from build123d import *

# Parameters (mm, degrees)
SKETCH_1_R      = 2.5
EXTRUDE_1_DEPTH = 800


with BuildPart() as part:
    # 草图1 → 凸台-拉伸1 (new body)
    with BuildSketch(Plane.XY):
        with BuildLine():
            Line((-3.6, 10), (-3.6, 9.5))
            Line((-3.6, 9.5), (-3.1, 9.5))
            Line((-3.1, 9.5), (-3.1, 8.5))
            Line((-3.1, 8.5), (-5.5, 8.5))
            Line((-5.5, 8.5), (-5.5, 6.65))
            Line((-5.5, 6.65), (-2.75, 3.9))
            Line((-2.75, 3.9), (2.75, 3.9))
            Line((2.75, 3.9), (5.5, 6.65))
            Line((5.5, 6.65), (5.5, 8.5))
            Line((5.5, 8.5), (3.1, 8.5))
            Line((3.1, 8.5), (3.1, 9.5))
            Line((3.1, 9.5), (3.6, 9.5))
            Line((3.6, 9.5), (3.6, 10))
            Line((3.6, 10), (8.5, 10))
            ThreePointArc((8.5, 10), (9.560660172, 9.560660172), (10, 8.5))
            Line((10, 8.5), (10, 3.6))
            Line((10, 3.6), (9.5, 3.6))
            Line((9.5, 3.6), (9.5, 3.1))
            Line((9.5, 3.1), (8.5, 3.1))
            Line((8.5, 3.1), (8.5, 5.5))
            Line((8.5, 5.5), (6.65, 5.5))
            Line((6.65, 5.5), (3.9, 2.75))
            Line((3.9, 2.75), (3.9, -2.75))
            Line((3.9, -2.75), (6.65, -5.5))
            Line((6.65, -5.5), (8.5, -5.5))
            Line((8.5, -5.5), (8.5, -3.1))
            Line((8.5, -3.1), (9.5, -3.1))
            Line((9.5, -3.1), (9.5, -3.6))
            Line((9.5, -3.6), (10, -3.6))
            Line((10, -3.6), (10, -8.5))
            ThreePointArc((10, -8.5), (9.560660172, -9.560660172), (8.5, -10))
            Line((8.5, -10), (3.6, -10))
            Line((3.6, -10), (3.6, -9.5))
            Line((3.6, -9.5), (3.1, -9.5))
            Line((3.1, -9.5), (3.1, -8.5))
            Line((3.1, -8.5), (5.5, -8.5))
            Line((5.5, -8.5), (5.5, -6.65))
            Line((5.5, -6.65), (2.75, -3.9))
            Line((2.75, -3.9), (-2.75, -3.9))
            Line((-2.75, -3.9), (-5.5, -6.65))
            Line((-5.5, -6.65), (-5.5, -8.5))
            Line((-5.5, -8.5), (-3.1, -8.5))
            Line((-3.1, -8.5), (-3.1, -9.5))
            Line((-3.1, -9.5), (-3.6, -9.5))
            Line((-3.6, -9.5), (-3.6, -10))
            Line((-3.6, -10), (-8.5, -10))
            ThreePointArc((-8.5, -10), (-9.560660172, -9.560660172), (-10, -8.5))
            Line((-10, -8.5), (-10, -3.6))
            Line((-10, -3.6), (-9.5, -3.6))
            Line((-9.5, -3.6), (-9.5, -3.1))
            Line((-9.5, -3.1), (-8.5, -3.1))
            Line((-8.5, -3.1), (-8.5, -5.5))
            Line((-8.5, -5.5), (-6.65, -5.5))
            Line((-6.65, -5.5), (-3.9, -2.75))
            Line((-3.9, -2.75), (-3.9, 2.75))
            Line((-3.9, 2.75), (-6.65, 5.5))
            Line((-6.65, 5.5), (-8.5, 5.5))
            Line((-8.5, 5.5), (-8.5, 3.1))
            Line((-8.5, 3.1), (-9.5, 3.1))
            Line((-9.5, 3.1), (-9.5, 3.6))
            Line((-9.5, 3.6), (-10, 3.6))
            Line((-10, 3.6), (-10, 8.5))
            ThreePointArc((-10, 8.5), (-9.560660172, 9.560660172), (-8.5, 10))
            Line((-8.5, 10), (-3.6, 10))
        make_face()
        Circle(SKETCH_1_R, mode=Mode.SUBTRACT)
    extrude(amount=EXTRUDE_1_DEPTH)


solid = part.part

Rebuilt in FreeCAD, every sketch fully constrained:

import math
import FreeCAD as App
import Part
import Sketcher
from FreeCAD import Vector

doc = App.newDocument("Part")
params = doc.addObject("Spreadsheet::Sheet", "Params")
for row, (alias, value) in enumerate([
    ("sketch1_diameter", "5 mm"),
    ("sketch1_radius", "1.5 mm"),
    ("sketch1_width", "1 mm"),
    ("sketch1_width2", "4.9 mm"),
    ("sketch1_width3", "2.4 mm"),
    ("pad1_length", "800 mm"),
], start=1):
    params.set(f"A{row}", alias)
    params.set(f"B{row}", "=" + value)
    params.setAlias(f"B{row}", alias)

body = doc.addObject("PartDesign::Body", "Body")

# Sketch on XY plane
sketch1 = body.newObject("Sketcher::SketchObject", "Sketch")
sketch1.AttachmentSupport = (doc.getObject("XY_Plane"), [""])
sketch1.MapMode = "FlatFace"
sketch1.addGeometry([
    Part.LineSegment(Vector(-3.6, 9.5, 0), Vector(-3.6, 10, 0)),  # 0
    Part.LineSegment(Vector(-3.6, 10, 0), Vector(-8.5, 10, 0)),  # 1
    Part.ArcOfCircle(Part.Circle(Vector(-8.5, 8.5, 0), Vector(0, 0, 1), 1.5), math.radians(90), math.radians(180)),  # 2
    Part.LineSegment(Vector(-10, 8.5, 0), Vector(-10, 3.6, 0)),  # 3
    Part.LineSegment(Vector(-10, 3.6, 0), Vector(-9.5, 3.6, 0)),  # 4
    Part.LineSegment(Vector(-9.5, 3.6, 0), Vector(-9.5, 3.1, 0)),  # 5
    Part.LineSegment(Vector(-9.5, 3.1, 0), Vector(-8.5, 3.1, 0)),  # 6
    Part.LineSegment(Vector(-8.5, 3.1, 0), Vector(-8.5, 5.5, 0)),  # 7
    Part.LineSegment(Vector(-8.5, 5.5, 0), Vector(-6.7, 5.5, 0)),  # 8
    Part.LineSegment(Vector(-6.7, 5.5, 0), Vector(-3.9, 2.8, 0)),  # 9
    Part.LineSegment(Vector(-3.9, 2.8, 0), Vector(-3.9, -2.8, 0)),  # 10
    Part.LineSegment(Vector(-3.9, -2.8, 0), Vector(-6.7, -5.5, 0)),  # 11
    Part.LineSegment(Vector(-6.7, -5.5, 0), Vector(-8.5, -5.5, 0)),  # 12
    Part.LineSegment(Vector(-8.5, -5.5, 0), Vector(-8.5, -3.1, 0)),  # 13
    Part.LineSegment(Vector(-8.5, -3.1, 0), Vector(-9.5, -3.1, 0)),  # 14
    Part.LineSegment(Vector(-9.5, -3.1, 0), Vector(-9.5, -3.6, 0)),  # 15
    Part.LineSegment(Vector(-9.5, -3.6, 0), Vector(-10, -3.6, 0)),  # 16
    Part.LineSegment(Vector(-10, -3.6, 0), Vector(-10, -8.5, 0)),  # 17
    Part.ArcOfCircle(Part.Circle(Vector(-8.5, -8.5, 0), Vector(0, 0, 1), 1.5), math.radians(180), math.radians(270)),  # 18
    Part.LineSegment(Vector(-8.5, -10, 0), Vector(-3.6, -10, 0)),  # 19
    Part.LineSegment(Vector(-3.6, -10, 0), Vector(-3.6, -9.5, 0)),  # 20
    Part.LineSegment(Vector(-3.6, -9.5, 0), Vector(-3.1, -9.5, 0)),  # 21
    Part.LineSegment(Vector(-3.1, -9.5, 0), Vector(-3.1, -8.5, 0)),  # 22
    Part.LineSegment(Vector(-3.1, -8.5, 0), Vector(-5.5, -8.5, 0)),  # 23
    Part.LineSegment(Vector(-5.5, -8.5, 0), Vector(-5.5, -6.7, 0)),  # 24
    Part.LineSegment(Vector(-5.5, -6.7, 0), Vector(-2.8, -3.9, 0)),  # 25
    Part.LineSegment(Vector(-2.8, -3.9, 0), Vector(2.8, -3.9, 0)),  # 26
    Part.LineSegment(Vector(2.8, -3.9, 0), Vector(5.5, -6.7, 0)),  # 27
    Part.LineSegment(Vector(5.5, -6.7, 0), Vector(5.5, -8.5, 0)),  # 28
    Part.LineSegment(Vector(5.5, -8.5, 0), Vector(3.1, -8.5, 0)),  # 29
    Part.LineSegment(Vector(3.1, -8.5, 0), Vector(3.1, -9.5, 0)),  # 30
    Part.LineSegment(Vector(3.1, -9.5, 0), Vector(3.6, -9.5, 0)),  # 31
    Part.LineSegment(Vector(3.6, -9.5, 0), Vector(3.6, -10, 0)),  # 32
    Part.LineSegment(Vector(3.6, -10, 0), Vector(8.5, -10, 0)),  # 33
    Part.ArcOfCircle(Part.Circle(Vector(8.5, -8.5, 0), Vector(0, 0, 1), 1.5), math.radians(-90), math.radians(0)),  # 34
    Part.LineSegment(Vector(10, -8.5, 0), Vector(10, -3.6, 0)),  # 35
    Part.LineSegment(Vector(10, -3.6, 0), Vector(9.5, -3.6, 0)),  # 36
    Part.LineSegment(Vector(9.5, -3.6, 0), Vector(9.5, -3.1, 0)),  # 37
    Part.LineSegment(Vector(9.5, -3.1, 0), Vector(8.5, -3.1, 0)),  # 38
    Part.LineSegment(Vector(8.5, -3.1, 0), Vector(8.5, -5.5, 0)),  # 39
    Part.LineSegment(Vector(8.5, -5.5, 0), Vector(6.7, -5.5, 0)),  # 40
    Part.LineSegment(Vector(6.7, -5.5, 0), Vector(3.9, -2.8, 0)),  # 41
    Part.LineSegment(Vector(3.9, -2.8, 0), Vector(3.9, 2.8, 0)),  # 42
    Part.LineSegment(Vector(3.9, 2.8, 0), Vector(6.7, 5.5, 0)),  # 43
    Part.LineSegment(Vector(6.7, 5.5, 0), Vector(8.5, 5.5, 0)),  # 44
    Part.LineSegment(Vector(8.5, 5.5, 0), Vector(8.5, 3.1, 0)),  # 45
    Part.LineSegment(Vector(8.5, 3.1, 0), Vector(9.5, 3.1, 0)),  # 46
    Part.LineSegment(Vector(9.5, 3.1, 0), Vector(9.5, 3.6, 0)),  # 47
    Part.LineSegment(Vector(9.5, 3.6, 0), Vector(10, 3.6, 0)),  # 48
    Part.LineSegment(Vector(10, 3.6, 0), Vector(10, 8.5, 0)),  # 49
    Part.ArcOfCircle(Part.Circle(Vector(8.5, 8.5, 0), Vector(0, 0, 1), 1.5), math.radians(0), math.radians(90)),  # 50
    Part.LineSegment(Vector(8.5, 10, 0), Vector(3.6, 10, 0)),  # 51
    Part.LineSegment(Vector(3.6, 10, 0), Vector(3.6, 9.5, 0)),  # 52
    Part.LineSegment(Vector(3.6, 9.5, 0), Vector(3.1, 9.5, 0)),  # 53
    Part.LineSegment(Vector(3.1, 9.5, 0), Vector(3.1, 8.5, 0)),  # 54
    Part.LineSegment(Vector(3.1, 8.5, 0), Vector(5.5, 8.5, 0)),  # 55
    Part.LineSegment(Vector(5.5, 8.5, 0), Vector(5.5, 6.7, 0)),  # 56
    Part.LineSegment(Vector(5.5, 6.7, 0), Vector(2.8, 3.9, 0)),  # 57
    Part.LineSegment(Vector(2.8, 3.9, 0), Vector(-2.8, 3.9, 0)),  # 58
    Part.LineSegment(Vector(-2.8, 3.9, 0), Vector(-5.5, 6.7, 0)),  # 59
    Part.LineSegment(Vector(-5.5, 6.7, 0), Vector(-5.5, 8.5, 0)),  # 60
    Part.LineSegment(Vector(-5.5, 8.5, 0), Vector(-3.1, 8.5, 0)),  # 61
    Part.LineSegment(Vector(-3.1, 8.5, 0), Vector(-3.1, 9.5, 0)),  # 62
    Part.LineSegment(Vector(-3.1, 9.5, 0), Vector(-3.6, 9.5, 0)),  # 63
    Part.Circle(Vector(0, 0, 0), Vector(0, 0, 1), 2.5),  # 64
], False)
sketch1.addConstraint([
    Sketcher.Constraint("Coincident", 0, 2, 1, 1),
    Sketcher.Constraint("Tangent", 1, 2, 2, 1),
    Sketcher.Constraint("Tangent", 2, 2, 3, 1),
    Sketcher.Constraint("Coincident", 3, 2, 4, 1),
    Sketcher.Constraint("Coincident", 4, 2, 5, 1),
    Sketcher.Constraint("Coincident", 5, 2, 6, 1),
    Sketcher.Constraint("Coincident", 6, 2, 7, 1),
    Sketcher.Constraint("Coincident", 7, 2, 8, 1),
    Sketcher.Constraint("Coincident", 8, 2, 9, 1),
    Sketcher.Constraint("Coincident", 9, 2, 10, 1),
    Sketcher.Constraint("Coincident", 10, 2, 11, 1),
    Sketcher.Constraint("Coincident", 11, 2, 12, 1),
    Sketcher.Constraint("Coincident", 12, 2, 13, 1),
    Sketcher.Constraint("Coincident", 13, 2, 14, 1),
    Sketcher.Constraint("Coincident", 14, 2, 15, 1),
    Sketcher.Constraint("Coincident", 15, 2, 16, 1),
    Sketcher.Constraint("Coincident", 16, 2, 17, 1),
    Sketcher.Constraint("Tangent", 17, 2, 18, 1),
    Sketcher.Constraint("Tangent", 18, 2, 19, 1),
    Sketcher.Constraint("Coincident", 19, 2, 20, 1),
    Sketcher.Constraint("Coincident", 20, 2, 21, 1),
    Sketcher.Constraint("Coincident", 21, 2, 22, 1),
    Sketcher.Constraint("Coincident", 22, 2, 23, 1),
    Sketcher.Constraint("Coincident", 23, 2, 24, 1),
    Sketcher.Constraint("Coincident", 24, 2, 25, 1),
    Sketcher.Constraint("Coincident", 25, 2, 26, 1),
    Sketcher.Constraint("Coincident", 26, 2, 27, 1),
    Sketcher.Constraint("Coincident", 27, 2, 28, 1),
    Sketcher.Constraint("Coincident", 28, 2, 29, 1),
    Sketcher.Constraint("Coincident", 29, 2, 30, 1),
    Sketcher.Constraint("Coincident", 30, 2, 31, 1),
    Sketcher.Constraint("Coincident", 31, 2, 32, 1),
    Sketcher.Constraint("Coincident", 32, 2, 33, 1),
    Sketcher.Constraint("Tangent", 33, 2, 34, 1),
    Sketcher.Constraint("Tangent", 34, 2, 35, 1),
    Sketcher.Constraint("Coincident", 35, 2, 36, 1),
    Sketcher.Constraint("Coincident", 36, 2, 37, 1),
    Sketcher.Constraint("Coincident", 37, 2, 38, 1),
    Sketcher.Constraint("Coincident", 38, 2, 39, 1),
    Sketcher.Constraint("Coincident", 39, 2, 40, 1),
    Sketcher.Constraint("Coincident", 40, 2, 41, 1),
    Sketcher.Constraint("Coincident", 41, 2, 42, 1),
    Sketcher.Constraint("Coincident", 42, 2, 43, 1),
    Sketcher.Constraint("Coincident", 43, 2, 44, 1),
    Sketcher.Constraint("Coincident", 44, 2, 45, 1),
    Sketcher.Constraint("Coincident", 45, 2, 46, 1),
    Sketcher.Constraint("Coincident", 46, 2, 47, 1),
    Sketcher.Constraint("Coincident", 47, 2, 48, 1),
    Sketcher.Constraint("Coincident", 48, 2, 49, 1),
    Sketcher.Constraint("Tangent", 49, 2, 50, 1),
    Sketcher.Constraint("Tangent", 50, 2, 51, 1),
    Sketcher.Constraint("Coincident", 51, 2, 52, 1),
    Sketcher.Constraint("Coincident", 52, 2, 53, 1),
    Sketcher.Constraint("Coincident", 53, 2, 54, 1),
    Sketcher.Constraint("Coincident", 54, 2, 55, 1),
    Sketcher.Constraint("Coincident", 55, 2, 56, 1),
    Sketcher.Constraint("Coincident", 56, 2, 57, 1),
    Sketcher.Constraint("Coincident", 57, 2, 58, 1),
    Sketcher.Constraint("Coincident", 58, 2, 59, 1),
    Sketcher.Constraint("Coincident", 59, 2, 60, 1),
    Sketcher.Constraint("Coincident", 60, 2, 61, 1),
    Sketcher.Constraint("Coincident", 61, 2, 62, 1),
    Sketcher.Constraint("Coincident", 62, 2, 63, 1),
    Sketcher.Constraint("Coincident", 63, 2, 0, 1),
    Sketcher.Constraint("Vertical", 0),
    Sketcher.Constraint("Horizontal", 1),
    Sketcher.Constraint("Vertical", 3),
    Sketcher.Constraint("Horizontal", 4),
    Sketcher.Constraint("Vertical", 5),
    Sketcher.Constraint("Horizontal", 6),
    Sketcher.Constraint("Vertical", 7),
    Sketcher.Constraint("Horizontal", 8),
    Sketcher.Constraint("Vertical", 10),
    Sketcher.Constraint("Horizontal", 12),
    Sketcher.Constraint("Vertical", 13),
    Sketcher.Constraint("Horizontal", 14),
    Sketcher.Constraint("Vertical", 15),
    Sketcher.Constraint("Horizontal", 16),
    Sketcher.Constraint("Vertical", 17),
    Sketcher.Constraint("Horizontal", 19),
    Sketcher.Constraint("Vertical", 20),
    Sketcher.Constraint("Horizontal", 21),
    Sketcher.Constraint("Vertical", 22),
    Sketcher.Constraint("Horizontal", 23),
    Sketcher.Constraint("Vertical", 24),
    Sketcher.Constraint("Horizontal", 26),
    Sketcher.Constraint("Vertical", 28),
    Sketcher.Constraint("Horizontal", 29),
    Sketcher.Constraint("Vertical", 30),
    Sketcher.Constraint("Horizontal", 31),
    Sketcher.Constraint("Vertical", 32),
    Sketcher.Constraint("Horizontal", 33),
    Sketcher.Constraint("Vertical", 35),
    Sketcher.Constraint("Horizontal", 36),
    Sketcher.Constraint("Vertical", 37),
    Sketcher.Constraint("Horizontal", 38),
    Sketcher.Constraint("Vertical", 39),
    Sketcher.Constraint("Horizontal", 40),
    Sketcher.Constraint("Vertical", 42),
    Sketcher.Constraint("Horizontal", 44),
    Sketcher.Constraint("Vertical", 45),
    Sketcher.Constraint("Horizontal", 46),
    Sketcher.Constraint("Vertical", 47),
    Sketcher.Constraint("Horizontal", 48),
    Sketcher.Constraint("Vertical", 49),
    Sketcher.Constraint("Horizontal", 51),
    Sketcher.Constraint("Vertical", 52),
    Sketcher.Constraint("Horizontal", 53),
    Sketcher.Constraint("Vertical", 54),
    Sketcher.Constraint("Horizontal", 55),
    Sketcher.Constraint("Vertical", 56),
    Sketcher.Constraint("Horizontal", 58),
    Sketcher.Constraint("Vertical", 60),
    Sketcher.Constraint("Horizontal", 61),
    Sketcher.Constraint("Vertical", 62),
    Sketcher.Constraint("Horizontal", 63),
    Sketcher.Constraint("Coincident", 64, 3, -1, 1),
    Sketcher.Constraint("Equal", 2, 18),
    Sketcher.Constraint("Equal", 18, 34),
    Sketcher.Constraint("Equal", 34, 50),
    Sketcher.Constraint("Symmetric", 2, 3, 34, 3, -1, 1),
    Sketcher.Constraint("Symmetric", 18, 3, 50, 3, -1, 1),
    Sketcher.Constraint("Symmetric", 4, 2, 36, 2, -1, 1),
    Sketcher.Constraint("Symmetric", 6, 2, 38, 2, -1, 1),
    Sketcher.Constraint("Symmetric", 8, 2, 40, 2, -1, 1),
    Sketcher.Constraint("Symmetric", 9, 2, 41, 2, -1, 1),
    Sketcher.Constraint("Symmetric", 11, 2, 43, 2, -1, 1),
    Sketcher.Constraint("Symmetric", 13, 2, 45, 2, -1, 1),
    Sketcher.Constraint("Symmetric", 15, 2, 47, 2, -1, 1),
    Sketcher.Constraint("Symmetric", 20, 2, 52, 2, -1, 1),
    Sketcher.Constraint("Symmetric", 22, 2, 54, 2, -1, 1),
    Sketcher.Constraint("Symmetric", 24, 2, 56, 2, -1, 1),
    Sketcher.Constraint("Symmetric", 25, 2, 57, 2, -1, 1),
    Sketcher.Constraint("Symmetric", 27, 2, 59, 2, -1, 1),
    Sketcher.Constraint("Symmetric", 29, 2, 61, 2, -1, 1),
    Sketcher.Constraint("Symmetric", 31, 2, 63, 2, -1, 1),
    Sketcher.Constraint("Symmetric", 18, 3, 34, 3, -2),
    Sketcher.Constraint("Symmetric", 24, 2, 27, 2, -2),
    Sketcher.Constraint("Symmetric", 22, 2, 29, 2, -2),
    Sketcher.Constraint("Symmetric", 20, 2, 31, 2, -2),
    Sketcher.Constraint("Symmetric", 15, 2, 36, 2, -2),
    Sketcher.Constraint("Symmetric", 13, 2, 38, 2, -2),
    Sketcher.Constraint("Symmetric", 11, 2, 40, 2, -2),
    Sketcher.Constraint("Perpendicular", 9, 11),
    Sketcher.Constraint("Parallel", 11, 25),
    Sketcher.Constraint("Perpendicular", 25, 27),
    Sketcher.Constraint("Perpendicular", 41, 43),
    Sketcher.Constraint("Perpendicular", 57, 59),
    Sketcher.Constraint("Horizontal", 17, 2, 22, 2),
    Sketcher.Constraint("Horizontal", 10, 2, 41, 2),
    Sketcher.Constraint("Vertical", 1, 2, 6, 2),
    Sketcher.Constraint("Equal", 16, 21),
    Sketcher.Constraint("Equal", 63, 0),
    Sketcher.Constraint("Equal", 51, 3),
    Sketcher.Constraint("Equal", 0, 5),
    Sketcher.Constraint("Equal", 61, 7),
    Sketcher.Constraint("Equal", 58, 10),
    Sketcher.Constraint("Equal", 44, 24),
    Sketcher.Constraint("Equal", 11, 25),
    Sketcher.Constraint("Diameter", 64, 5.0),
    Sketcher.Constraint("Radius", 2, 1.5),
    Sketcher.Constraint("DistanceX", 6, 1, 6, 2, 1.0),
    Sketcher.Constraint("DistanceX", 1, 2, 1, 1, 4.9),
    Sketcher.Constraint("DistanceX", 23, 2, 23, 1, 2.4),
    Sketcher.Constraint("DistanceX", 26, 1, 26, 2, 5.5),
    Sketcher.Constraint("DistanceY", -1, 1, 0, 2, 10.0),
    Sketcher.Constraint("DistanceX", 8, 1, 8, 2, 1.85),
])
sketch1.setExpression("Constraints[159]", "Params.sketch1_diameter")
sketch1.setExpression("Constraints[160]", "Params.sketch1_radius")
sketch1.setExpression("Constraints[161]", "Params.sketch1_width")
sketch1.setExpression("Constraints[162]", "Params.sketch1_width2")
sketch1.setExpression("Constraints[163]", "Params.sketch1_width3")
pad1 = body.newObject("PartDesign::Pad", "Pad")
pad1.Profile = sketch1
pad1.setExpression("Length", "Params.pad1_length")

doc.recompute()
